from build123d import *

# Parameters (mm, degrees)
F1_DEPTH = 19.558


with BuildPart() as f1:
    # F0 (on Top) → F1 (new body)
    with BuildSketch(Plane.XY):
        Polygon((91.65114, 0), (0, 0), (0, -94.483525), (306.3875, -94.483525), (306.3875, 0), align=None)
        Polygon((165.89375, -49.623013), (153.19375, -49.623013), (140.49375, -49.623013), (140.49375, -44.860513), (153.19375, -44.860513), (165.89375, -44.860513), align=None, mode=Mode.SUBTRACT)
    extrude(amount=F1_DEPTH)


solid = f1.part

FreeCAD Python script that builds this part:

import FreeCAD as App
import Part
import Sketcher
Q = App.Units.Quantity


def add_polygon(sketch, points):
    """Adds a closed chain of lines whose ends are joined by coincident constraints."""
    first, n = sketch.GeometryCount, len(points)
    for a, b in zip(points, points[1:] + points[:1]):
        sketch.addGeometry(Part.LineSegment(App.Vector(*a, 0), App.Vector(*b, 0)), False)
    for i in range(n):
        sketch.addConstraint(Sketcher.Constraint("Coincident", first + i, 2, first + (i + 1) % n, 1))

doc = App.newDocument("Part")
body = doc.addObject("PartDesign::Body", "Body")

# Sketch on XY plane
sketch1 = body.newObject("Sketcher::SketchObject", "Sketch")
sketch1.AttachmentSupport = (doc.getObject("XY_Plane"), [""])
sketch1.MapMode = "FlatFace"
add_polygon(sketch1, [(0, 0), (0, -94.5), (306.4, -94.5), (306.4, 0)])  # lines 0-3
add_polygon(sketch1, [(165.9, -44.9), (165.9, -49.6), (140.5, -49.6), (140.5, -44.9)])  # lines 4-7
sketch1.addConstraint([
    Sketcher.Constraint("Vertical", 0),
    Sketcher.Constraint("Horizontal", 1),
    Sketcher.Constraint("Vertical", 2),
    Sketcher.Constraint("Horizontal", 3),
    Sketcher.Constraint("Vertical", 4),
    Sketcher.Constraint("Horizontal", 5),
    Sketcher.Constraint("Vertical", 6),
    Sketcher.Constraint("Horizontal", 7),
    Sketcher.Constraint("Coincident", 3, 2, -1, 1),
    Sketcher.Constraint("DistanceX", 5, 2, 5, 1, Q("1 in")),
    Sketcher.Constraint("DistanceX", 1, 1, 1, 2, Q("12.0625 in")),
    Sketcher.Constraint("DistanceY", 4, 2, 4, 1, Q("0.1875 in")),
    Sketcher.Constraint("DistanceX", -1, 1, 4, 2, Q("6.53125 in")),
    Sketcher.Constraint("DistanceY", 0, 2, 0, 1, 94.483525),
    Sketcher.Constraint("DistanceY", 4, 2, -1, 1, 49.623013),
])
pad1 = body.newObject("PartDesign::Pad", "Pad")
pad1.Profile = sketch1
pad1.Length = Q("0.77 in")

doc.recompute()
